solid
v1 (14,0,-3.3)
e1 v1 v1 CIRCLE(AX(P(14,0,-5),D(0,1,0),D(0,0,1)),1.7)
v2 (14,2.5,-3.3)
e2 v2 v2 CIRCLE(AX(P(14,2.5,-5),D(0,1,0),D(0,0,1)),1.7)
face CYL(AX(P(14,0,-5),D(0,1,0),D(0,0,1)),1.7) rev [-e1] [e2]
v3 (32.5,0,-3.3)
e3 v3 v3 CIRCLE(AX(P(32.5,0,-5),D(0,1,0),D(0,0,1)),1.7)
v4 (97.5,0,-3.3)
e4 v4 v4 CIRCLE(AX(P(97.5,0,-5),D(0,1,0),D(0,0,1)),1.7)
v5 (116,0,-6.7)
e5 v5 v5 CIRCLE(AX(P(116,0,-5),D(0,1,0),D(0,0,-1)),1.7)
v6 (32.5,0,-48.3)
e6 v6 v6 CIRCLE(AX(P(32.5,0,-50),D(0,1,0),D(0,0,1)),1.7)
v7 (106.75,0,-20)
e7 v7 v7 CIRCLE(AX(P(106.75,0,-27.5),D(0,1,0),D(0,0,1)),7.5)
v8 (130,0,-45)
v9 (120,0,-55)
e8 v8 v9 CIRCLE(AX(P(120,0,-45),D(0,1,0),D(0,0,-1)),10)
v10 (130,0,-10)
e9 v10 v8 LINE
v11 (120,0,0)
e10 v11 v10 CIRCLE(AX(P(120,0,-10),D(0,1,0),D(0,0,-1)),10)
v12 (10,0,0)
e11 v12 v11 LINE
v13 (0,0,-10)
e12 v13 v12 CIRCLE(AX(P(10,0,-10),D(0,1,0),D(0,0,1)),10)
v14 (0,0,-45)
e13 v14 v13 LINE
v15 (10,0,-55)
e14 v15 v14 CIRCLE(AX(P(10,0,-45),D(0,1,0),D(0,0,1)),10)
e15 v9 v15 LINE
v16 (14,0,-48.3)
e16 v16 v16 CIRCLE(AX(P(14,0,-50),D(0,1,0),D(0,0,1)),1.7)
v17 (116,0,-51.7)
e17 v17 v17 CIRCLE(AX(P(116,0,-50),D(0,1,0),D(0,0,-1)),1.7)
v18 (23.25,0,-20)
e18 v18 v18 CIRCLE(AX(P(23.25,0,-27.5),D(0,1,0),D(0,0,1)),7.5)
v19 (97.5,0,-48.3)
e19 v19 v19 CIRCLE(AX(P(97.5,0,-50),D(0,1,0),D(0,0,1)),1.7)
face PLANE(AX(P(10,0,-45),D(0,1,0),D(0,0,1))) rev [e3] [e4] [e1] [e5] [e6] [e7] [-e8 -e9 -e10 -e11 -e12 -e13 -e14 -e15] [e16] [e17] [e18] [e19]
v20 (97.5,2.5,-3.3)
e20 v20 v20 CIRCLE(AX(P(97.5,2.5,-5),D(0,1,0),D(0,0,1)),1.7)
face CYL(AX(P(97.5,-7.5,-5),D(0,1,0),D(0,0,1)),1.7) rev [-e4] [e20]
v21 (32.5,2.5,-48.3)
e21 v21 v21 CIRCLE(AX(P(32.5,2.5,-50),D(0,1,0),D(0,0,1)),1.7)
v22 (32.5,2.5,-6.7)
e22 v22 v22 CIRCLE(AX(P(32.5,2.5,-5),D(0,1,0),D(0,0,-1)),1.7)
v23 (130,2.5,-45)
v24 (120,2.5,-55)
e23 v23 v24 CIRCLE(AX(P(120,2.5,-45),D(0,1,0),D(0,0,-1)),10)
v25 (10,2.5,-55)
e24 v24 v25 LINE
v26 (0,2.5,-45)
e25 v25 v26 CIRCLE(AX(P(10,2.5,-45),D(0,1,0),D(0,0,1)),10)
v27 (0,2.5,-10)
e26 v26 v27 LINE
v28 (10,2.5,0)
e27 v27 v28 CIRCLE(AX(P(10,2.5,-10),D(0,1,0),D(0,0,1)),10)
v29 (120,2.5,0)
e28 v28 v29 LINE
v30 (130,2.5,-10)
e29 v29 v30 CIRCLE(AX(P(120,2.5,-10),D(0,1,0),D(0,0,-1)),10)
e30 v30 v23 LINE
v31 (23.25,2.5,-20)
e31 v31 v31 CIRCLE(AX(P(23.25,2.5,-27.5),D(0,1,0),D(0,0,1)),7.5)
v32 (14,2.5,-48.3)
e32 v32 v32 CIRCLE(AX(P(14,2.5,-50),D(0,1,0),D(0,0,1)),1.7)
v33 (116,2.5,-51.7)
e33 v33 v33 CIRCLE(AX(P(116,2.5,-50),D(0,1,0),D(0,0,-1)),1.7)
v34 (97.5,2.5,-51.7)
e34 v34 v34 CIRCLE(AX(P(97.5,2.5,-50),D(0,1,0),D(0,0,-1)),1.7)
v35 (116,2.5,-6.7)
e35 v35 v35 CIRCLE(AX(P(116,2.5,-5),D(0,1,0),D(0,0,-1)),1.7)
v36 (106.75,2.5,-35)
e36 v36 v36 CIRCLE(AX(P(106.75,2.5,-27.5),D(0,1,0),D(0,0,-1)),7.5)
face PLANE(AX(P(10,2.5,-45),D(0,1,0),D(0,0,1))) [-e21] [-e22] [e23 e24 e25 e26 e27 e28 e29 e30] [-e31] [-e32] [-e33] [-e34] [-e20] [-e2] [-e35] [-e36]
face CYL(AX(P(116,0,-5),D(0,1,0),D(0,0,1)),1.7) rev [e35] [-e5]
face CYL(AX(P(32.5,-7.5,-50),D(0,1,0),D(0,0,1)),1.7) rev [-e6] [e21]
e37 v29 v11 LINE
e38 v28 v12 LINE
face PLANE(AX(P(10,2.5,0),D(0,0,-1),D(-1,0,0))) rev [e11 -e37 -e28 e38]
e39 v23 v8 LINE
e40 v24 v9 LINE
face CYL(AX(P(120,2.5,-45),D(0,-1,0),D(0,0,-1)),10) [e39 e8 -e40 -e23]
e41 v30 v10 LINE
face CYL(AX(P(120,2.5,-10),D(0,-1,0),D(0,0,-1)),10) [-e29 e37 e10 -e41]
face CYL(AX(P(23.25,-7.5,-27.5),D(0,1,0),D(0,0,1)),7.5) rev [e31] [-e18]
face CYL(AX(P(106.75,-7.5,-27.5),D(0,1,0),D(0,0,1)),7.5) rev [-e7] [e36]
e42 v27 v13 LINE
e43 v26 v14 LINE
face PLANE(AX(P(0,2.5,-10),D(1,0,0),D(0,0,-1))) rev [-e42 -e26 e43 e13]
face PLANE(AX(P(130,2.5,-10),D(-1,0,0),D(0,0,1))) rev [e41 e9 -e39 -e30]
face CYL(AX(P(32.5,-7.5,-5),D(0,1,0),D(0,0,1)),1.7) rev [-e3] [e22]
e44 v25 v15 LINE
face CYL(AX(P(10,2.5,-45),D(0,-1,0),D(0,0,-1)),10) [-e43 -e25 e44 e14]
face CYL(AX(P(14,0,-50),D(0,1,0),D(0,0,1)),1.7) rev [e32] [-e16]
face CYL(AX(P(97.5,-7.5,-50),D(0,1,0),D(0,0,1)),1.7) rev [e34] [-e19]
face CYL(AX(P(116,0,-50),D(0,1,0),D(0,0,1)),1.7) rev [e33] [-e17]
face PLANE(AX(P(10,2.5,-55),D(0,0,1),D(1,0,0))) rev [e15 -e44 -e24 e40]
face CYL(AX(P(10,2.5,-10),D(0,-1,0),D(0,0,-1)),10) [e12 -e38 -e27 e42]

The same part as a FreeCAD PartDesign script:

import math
import FreeCAD as App
import Part
import Sketcher
from FreeCAD import Vector
Q = App.Units.Quantity

doc = App.newDocument("Part")
body = doc.addObject("PartDesign::Body", "Body")

sketch1 = body.newObject("Sketcher::SketchObject", "Sketch")
sketch1.AttachmentSupport = (doc.getObject("XZ_Plane"), [""])
sketch1.MapMode = "FlatFace"
sketch1.addGeometry(Part.LineSegment(Vector(10, 0, 0), Vector(120, 0, 0)), False)
sketch1.addGeometry(Part.ArcOfCircle(Part.Circle(Vector(120, -10, 0), Vector(0, 0, 1), 10), math.radians(0), math.radians(90)), False)
sketch1.addGeometry(Part.LineSegment(Vector(130, -10, 0), Vector(130, -45, 0)), False)
sketch1.addGeometry(Part.ArcOfCircle(Part.Circle(Vector(120, -45, 0), Vector(0, 0, 1), 10), math.radians(-90), math.radians(0)), False)
sketch1.addGeometry(Part.LineSegment(Vector(120, -55, 0), Vector(10, -55, 0)), False)
sketch1.addGeometry(Part.ArcOfCircle(Part.Circle(Vector(10, -45, 0), Vector(0, 0, 1), 10), math.radians(180), math.radians(270)), False)
sketch1.addGeometry(Part.LineSegment(Vector(0, -45, 0), Vector(0, -10, 0)), False)
sketch1.addGeometry(Part.ArcOfCircle(Part.Circle(Vector(10, -10, 0), Vector(0, 0, 1), 10), math.radians(90), math.radians(180)), False)
sketch1.addConstraint(Sketcher.Constraint("Tangent", 0, 2, 1, 2))
sketch1.addConstraint(Sketcher.Constraint("Tangent", 1, 1, 2, 1))
sketch1.addConstraint(Sketcher.Constraint("Tangent", 2, 2, 3, 2))
sketch1.addConstraint(Sketcher.Constraint("Tangent", 3, 1, 4, 1))
sketch1.addConstraint(Sketcher.Constraint("Tangent", 4, 2, 5, 2))
sketch1.addConstraint(Sketcher.Constraint("Tangent", 5, 1, 6, 1))
sketch1.addConstraint(Sketcher.Constraint("Tangent", 6, 2, 7, 2))
sketch1.addConstraint(Sketcher.Constraint("Tangent", 7, 1, 0, 1))
sketch1.addConstraint(Sketcher.Constraint("Horizontal", 0))
sketch1.addConstraint(Sketcher.Constraint("Vertical", 2))
sketch1.addConstraint(Sketcher.Constraint("Horizontal", 4))
sketch1.addConstraint(Sketcher.Constraint("Vertical", 6))
sketch1.addConstraint(Sketcher.Constraint("Equal", 1, 3))
sketch1.addConstraint(Sketcher.Constraint("Equal", 3, 5))
sketch1.addConstraint(Sketcher.Constraint("Equal", 5, 7))
sketch1.addConstraint(Sketcher.Constraint("PointOnObject", 0, 2, -1))
sketch1.addConstraint(Sketcher.Constraint("PointOnObject", 5, 1, -2))
sketch1.addConstraint(Sketcher.Constraint("Radius", 1, Q("10 mm")))
sketch1.addConstraint(Sketcher.Constraint("DistanceX", 0, 1, 0, 2, Q("110 mm")))
sketch1.addConstraint(Sketcher.Constraint("DistanceY", 2, 2, 2, 1, Q("35 mm")))
pad1 = body.newObject("PartDesign::Pad", "Pad")
pad1.Profile = sketch1
pad1.Length = 2.5
pad1.Reversed = True

sketch2 = body.newObject("Sketcher::SketchObject", "Sketch001")
sketch2.AttachmentSupport = (doc.getObject("XZ_Plane"), [""])
sketch2.MapMode = "FlatFace"
sketch2.AttachmentOffset = App.Placement(Vector(0, 0, -2.5), App.Rotation())
sketch2.addGeometry(Part.Circle(Vector(14, -5, 0), Vector(0, 0, 1), 1.7), False)
sketch2.addGeometry(Part.Circle(Vector(14, -50, 0), Vector(0, 0, 1), 1.7), False)
sketch2.addGeometry(Part.Circle(Vector(116, -5, 0), Vector(0, 0, 1), 1.7), False)
sketch2.addGeometry(Part.Circle(Vector(116, -50, 0), Vector(0, 0, 1), 1.7), False)
sketch2.addConstraint(Sketcher.Constraint("Equal", 0, 1))
sketch2.addConstraint(Sketcher.Constraint("Equal", 1, 2))
sketch2.addConstraint(Sketcher.Constraint("Equal", 2, 3))
sketch2.addConstraint(Sketcher.Constraint("Horizontal", 0, 3, 2, 3))
sketch2.addConstraint(Sketcher.Constraint("Horizontal", 1, 3, 3, 3))
sketch2.addConstraint(Sketcher.Constraint("Vertical", 0, 3, 1, 3))
sketch2.addConstraint(Sketcher.Constraint("Vertical", 2, 3, 3, 3))
sketch2.addConstraint(Sketcher.Constraint("Diameter", 0, Q("3.4 mm")))
sketch2.addConstraint(Sketcher.Constraint("DistanceX", -1, 1, 0, 3, Q("14 mm")))
sketch2.addConstraint(Sketcher.Constraint("DistanceY", 0, 3, -1, 1, Q("5 mm")))
sketch2.addConstraint(Sketcher.Constraint("DistanceY", 1, 3, -1, 1, Q("50 mm")))
sketch2.addConstraint(Sketcher.Constraint("DistanceX", -1, 1, 2, 3, Q("116 mm")))
pocket1 = body.newObject("PartDesign::Pocket", "Pocket")
pocket1.Profile = sketch2
pocket1.Type = "ThroughAll"
pocket1.Reversed = True

sketch3 = body.newObject("Sketcher::SketchObject", "Sketch002")
sketch3.AttachmentSupport = (doc.getObject("XZ_Plane"), [""])
sketch3.MapMode = "FlatFace"
sketch3.AttachmentOffset = App.Placement(Vector(0, 0, -2.5), App.Rotation())
sketch3.addGeometry(Part.Circle(Vector(32.5, -50, 0), Vector(0, 0, 1), 1.7), False)
sketch3.addGeometry(Part.Circle(Vector(32.5, -5, 0), Vector(0, 0, 1), 1.7), False)
sketch3.addGeometry(Part.Circle(Vector(97.5, -5, 0), Vector(0, 0, 1), 1.7), False)
sketch3.addGeometry(Part.Circle(Vector(97.5, -50, 0), Vector(0, 0, 1), 1.7), False)
sketch3.addConstraint(Sketcher.Constraint("Equal", 0, 1))
sketch3.addConstraint(Sketcher.Constraint("Equal", 1, 2))
sketch3.addConstraint(Sketcher.Constraint("Equal", 2, 3))
sketch3.addConstraint(Sketcher.Constraint("Horizontal", 1, 3, 2, 3))
sketch3.addConstraint(Sketcher.Constraint("Horizontal", 0, 3, 3, 3))
sketch3.addConstraint(Sketcher.Constraint("Vertical", 0, 3, 1, 3))
sketch3.addConstraint(Sketcher.Constraint("Vertical", 2, 3, 3, 3))
sketch3.addConstraint(Sketcher.Constraint("Diameter", 0, Q("3.4 mm")))
sketch3.addConstraint(Sketcher.Constraint("DistanceY", 0, 3, -1, 1, Q("50 mm")))
sketch3.addConstraint(Sketcher.Constraint("DistanceY", 1, 3, -1, 1, Q("5 mm")))
sketch3.addConstraint(Sketcher.Constraint("DistanceX", 1, 3, 2, 3, Q("65 mm")))
sketch3.addConstraint(Sketcher.Constraint("DistanceX", -1, 1, 0, 3, Q("32.5 mm")))
pocket2 = body.newObject("PartDesign::Pocket", "Pocket001")
pocket2.Profile = sketch3
pocket2.Length = 10
pocket2.Reversed = True

sketch4 = body.newObject("Sketcher::SketchObject", "Sketch003")
sketch4.AttachmentSupport = (doc.getObject("XZ_Plane"), [""])
sketch4.MapMode = "FlatFace"
sketch4.AttachmentOffset = App.Placement(Vector(0, 0, -2.5), App.Rotation())
sketch4.addGeometry(Part.Circle(Vector(23.25, -27.5, 0), Vector(0, 0, 1), 7.5), False)
sketch4.addGeometry(Part.Circle(Vector(106.75, -27.5, 0), Vector(0, 0, 1), 7.5), False)
sketch4.addConstraint(Sketcher.Constraint("Equal", 0, 1))
sketch4.addConstraint(Sketcher.Constraint("Horizontal", 0, 3, 1, 3))
sketch4.addConstraint(Sketcher.Constraint("Diameter", 0, Q("15 mm")))
sketch4.addConstraint(Sketcher.Constraint("DistanceY", 0, 3, -1, 1, Q("27.5 mm")))
sketch4.addConstraint(Sketcher.Constraint("DistanceX", 0, 3, 1, 3, Q("83.5 mm")))
sketch4.addConstraint(Sketcher.Constraint("DistanceX", -1, 1, 0, 3, Q("23.25 mm")))
pocket3 = body.newObject("PartDesign::Pocket", "Pocket002")
pocket3.Profile = sketch4
pocket3.Length = 10
pocket3.Reversed = True

doc.recompute()
